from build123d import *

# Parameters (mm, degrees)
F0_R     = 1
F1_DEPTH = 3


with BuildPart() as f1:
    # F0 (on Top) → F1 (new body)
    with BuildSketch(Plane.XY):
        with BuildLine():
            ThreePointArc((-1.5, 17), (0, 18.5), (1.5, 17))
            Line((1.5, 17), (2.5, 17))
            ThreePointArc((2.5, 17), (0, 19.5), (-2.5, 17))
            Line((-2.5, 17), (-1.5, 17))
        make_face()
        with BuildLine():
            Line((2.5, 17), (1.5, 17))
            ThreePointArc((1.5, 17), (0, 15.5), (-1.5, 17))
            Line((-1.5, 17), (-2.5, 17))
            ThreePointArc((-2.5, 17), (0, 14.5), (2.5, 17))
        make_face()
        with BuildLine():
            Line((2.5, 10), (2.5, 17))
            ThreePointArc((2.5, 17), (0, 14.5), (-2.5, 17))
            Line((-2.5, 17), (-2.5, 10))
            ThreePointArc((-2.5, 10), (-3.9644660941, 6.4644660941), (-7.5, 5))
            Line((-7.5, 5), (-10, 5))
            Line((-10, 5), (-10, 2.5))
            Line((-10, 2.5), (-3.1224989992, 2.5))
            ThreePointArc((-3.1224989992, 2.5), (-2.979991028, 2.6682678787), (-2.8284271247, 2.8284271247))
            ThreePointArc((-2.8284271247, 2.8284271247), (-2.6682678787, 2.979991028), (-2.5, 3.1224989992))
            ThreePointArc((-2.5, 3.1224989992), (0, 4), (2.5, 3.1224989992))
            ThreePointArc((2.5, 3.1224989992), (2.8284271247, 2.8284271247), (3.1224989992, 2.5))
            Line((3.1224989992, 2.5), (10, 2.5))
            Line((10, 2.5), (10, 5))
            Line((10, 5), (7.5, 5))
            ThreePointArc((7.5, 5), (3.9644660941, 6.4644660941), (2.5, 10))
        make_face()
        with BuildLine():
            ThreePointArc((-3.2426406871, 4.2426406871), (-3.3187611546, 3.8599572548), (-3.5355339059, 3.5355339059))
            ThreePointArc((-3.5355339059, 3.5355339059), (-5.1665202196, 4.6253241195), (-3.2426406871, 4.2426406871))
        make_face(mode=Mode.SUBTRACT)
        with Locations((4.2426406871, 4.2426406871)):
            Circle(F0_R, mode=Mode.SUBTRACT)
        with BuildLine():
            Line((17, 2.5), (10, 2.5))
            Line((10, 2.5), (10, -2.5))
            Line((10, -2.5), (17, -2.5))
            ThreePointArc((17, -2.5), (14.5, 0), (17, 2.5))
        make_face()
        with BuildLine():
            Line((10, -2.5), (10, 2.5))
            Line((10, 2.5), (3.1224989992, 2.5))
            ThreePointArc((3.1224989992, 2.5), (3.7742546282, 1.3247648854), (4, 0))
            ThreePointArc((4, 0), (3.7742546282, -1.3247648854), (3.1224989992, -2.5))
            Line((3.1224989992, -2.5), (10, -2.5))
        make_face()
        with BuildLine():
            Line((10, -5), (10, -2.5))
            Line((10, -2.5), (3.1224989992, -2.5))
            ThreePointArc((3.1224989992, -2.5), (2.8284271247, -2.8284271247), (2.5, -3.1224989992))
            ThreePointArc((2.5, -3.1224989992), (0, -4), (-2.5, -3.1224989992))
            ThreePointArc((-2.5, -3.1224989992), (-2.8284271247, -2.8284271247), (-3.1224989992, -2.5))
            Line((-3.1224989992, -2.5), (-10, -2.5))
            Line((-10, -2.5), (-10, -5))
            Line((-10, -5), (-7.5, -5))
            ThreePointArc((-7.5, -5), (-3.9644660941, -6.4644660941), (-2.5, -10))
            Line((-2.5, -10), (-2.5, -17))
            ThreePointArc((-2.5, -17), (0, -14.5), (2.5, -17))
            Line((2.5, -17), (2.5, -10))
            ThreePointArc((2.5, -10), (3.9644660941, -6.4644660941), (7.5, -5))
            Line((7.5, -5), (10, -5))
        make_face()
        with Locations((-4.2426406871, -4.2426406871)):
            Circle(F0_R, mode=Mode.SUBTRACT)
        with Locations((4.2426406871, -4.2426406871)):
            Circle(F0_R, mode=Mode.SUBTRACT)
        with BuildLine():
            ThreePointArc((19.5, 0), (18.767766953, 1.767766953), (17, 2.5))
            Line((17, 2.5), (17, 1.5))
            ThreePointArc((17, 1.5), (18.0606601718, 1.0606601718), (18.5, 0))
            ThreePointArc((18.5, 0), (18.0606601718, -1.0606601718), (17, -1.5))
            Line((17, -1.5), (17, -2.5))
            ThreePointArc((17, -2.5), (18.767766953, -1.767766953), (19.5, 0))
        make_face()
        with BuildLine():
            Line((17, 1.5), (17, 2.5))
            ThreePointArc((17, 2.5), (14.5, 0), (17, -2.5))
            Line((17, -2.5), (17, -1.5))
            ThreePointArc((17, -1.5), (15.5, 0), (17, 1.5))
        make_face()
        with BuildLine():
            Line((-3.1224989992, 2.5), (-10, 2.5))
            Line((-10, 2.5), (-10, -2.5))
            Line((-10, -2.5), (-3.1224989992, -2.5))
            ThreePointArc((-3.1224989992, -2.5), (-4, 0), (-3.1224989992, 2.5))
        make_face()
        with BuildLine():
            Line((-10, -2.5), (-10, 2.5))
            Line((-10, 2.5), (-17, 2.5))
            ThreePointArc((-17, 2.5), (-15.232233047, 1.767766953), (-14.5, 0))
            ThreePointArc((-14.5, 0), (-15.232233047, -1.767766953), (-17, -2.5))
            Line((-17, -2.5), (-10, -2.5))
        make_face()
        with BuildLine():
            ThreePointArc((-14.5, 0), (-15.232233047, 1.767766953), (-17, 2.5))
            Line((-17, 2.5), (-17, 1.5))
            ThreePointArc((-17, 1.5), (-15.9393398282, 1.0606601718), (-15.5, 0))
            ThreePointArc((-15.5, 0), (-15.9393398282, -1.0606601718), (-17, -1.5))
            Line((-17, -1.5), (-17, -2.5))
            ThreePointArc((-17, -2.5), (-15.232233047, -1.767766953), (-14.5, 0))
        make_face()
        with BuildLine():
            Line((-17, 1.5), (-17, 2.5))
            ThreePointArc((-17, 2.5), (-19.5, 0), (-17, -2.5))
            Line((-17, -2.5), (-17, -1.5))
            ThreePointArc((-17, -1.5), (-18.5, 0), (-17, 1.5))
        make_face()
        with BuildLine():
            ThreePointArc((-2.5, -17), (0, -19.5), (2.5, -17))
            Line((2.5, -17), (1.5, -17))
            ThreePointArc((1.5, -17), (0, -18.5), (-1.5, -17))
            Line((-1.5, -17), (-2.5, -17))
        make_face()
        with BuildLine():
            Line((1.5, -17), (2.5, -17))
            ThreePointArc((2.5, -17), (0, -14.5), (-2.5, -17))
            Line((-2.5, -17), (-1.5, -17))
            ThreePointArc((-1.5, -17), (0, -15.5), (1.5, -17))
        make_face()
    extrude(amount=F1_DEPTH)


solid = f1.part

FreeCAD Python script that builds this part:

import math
import FreeCAD as App
import Part
import Sketcher

V = App.Vector

doc = App.newDocument("Part")
body = doc.addObject("PartDesign::Body", "Body")

# Sketch on XY plane
sketch1 = doc.addObject("Sketcher::SketchObject", "Sketch")
body.addObject(sketch1)
sketch1.AttachmentSupport = (doc.XY_Plane, [""])
sketch1.MapMode = "FlatFace"
sketch1.addGeometry(Part.ArcOfCircle(Part.Circle(V(0, 17, 0), V(0, 0, 1), 2.5), math.radians(0), math.radians(180)), False)
sketch1.addGeometry(Part.LineSegment(V(-2.5, 17, 0), V(-2.5, 10, 0)), False)
sketch1.addGeometry(Part.ArcOfCircle(Part.Circle(V(-7.5, 10, 0), V(0, 0, 1), 5), math.radians(-90), math.radians(0)), False)
sketch1.addGeometry(Part.LineSegment(V(-7.5, 5, 0), V(-10, 5, 0)), False)
sketch1.addGeometry(Part.LineSegment(V(-10, 5, 0), V(-10, 2.5, 0)), False)
sketch1.addGeometry(Part.LineSegment(V(-10, 2.5, 0), V(-17, 2.5, 0)), False)
sketch1.addGeometry(Part.ArcOfCircle(Part.Circle(V(-17, 0, 0), V(0, 0, 1), 2.5), math.radians(90), math.radians(270)), False)
sketch1.addGeometry(Part.LineSegment(V(-17, -2.5, 0), V(-10, -2.5, 0)), False)
sketch1.addGeometry(Part.LineSegment(V(-10, -2.5, 0), V(-10, -5, 0)), False)
sketch1.addGeometry(Part.LineSegment(V(-10, -5, 0), V(-7.5, -5, 0)), False)
sketch1.addGeometry(Part.ArcOfCircle(Part.Circle(V(-7.5, -10, 0), V(0, 0, 1), 5), math.radians(0), math.radians(90)), False)
sketch1.addGeometry(Part.LineSegment(V(-2.5, -10, 0), V(-2.5, -17, 0)), False)
sketch1.addGeometry(Part.ArcOfCircle(Part.Circle(V(0, -17, 0), V(0, 0, 1), 2.5), math.radians(180), math.radians(360)), False)
sketch1.addGeometry(Part.LineSegment(V(2.5, -17, 0), V(2.5, -10, 0)), False)
sketch1.addGeometry(Part.ArcOfCircle(Part.Circle(V(7.5, -10, 0), V(0, 0, 1), 5), math.radians(90), math.radians(180)), False)
sketch1.addGeometry(Part.LineSegment(V(7.5, -5, 0), V(10, -5, 0)), False)
sketch1.addGeometry(Part.LineSegment(V(10, -5, 0), V(10, -2.5, 0)), False)
sketch1.addGeometry(Part.LineSegment(V(10, -2.5, 0), V(17, -2.5, 0)), False)
sketch1.addGeometry(Part.ArcOfCircle(Part.Circle(V(17, 0, 0), V(0, 0, 1), 2.5), math.radians(-90), math.radians(0)), False)
sketch1.addGeometry(Part.ArcOfCircle(Part.Circle(V(17, 0, 0), V(0, 0, 1), 2.5), math.radians(0), math.radians(90)), False)
sketch1.addGeometry(Part.LineSegment(V(17, 2.5, 0), V(10, 2.5, 0)), False)
sketch1.addGeometry(Part.LineSegment(V(10, 2.5, 0), V(10, 5, 0)), False)
sketch1.addGeometry(Part.LineSegment(V(10, 5, 0), V(7.5, 5, 0)), False)
sketch1.addGeometry(Part.ArcOfCircle(Part.Circle(V(7.5, 10, 0), V(0, 0, 1), 5), math.radians(180), math.radians(270)), False)
sketch1.addGeometry(Part.LineSegment(V(2.5, 10, 0), V(2.5, 17, 0)), False)
sketch1.addGeometry(Part.ArcOfCircle(Part.Circle(V(-17, 0, 0), V(0, 0, 1), 1.5), math.radians(0), math.radians(90)), False)
sketch1.addGeometry(Part.ArcOfCircle(Part.Circle(V(-17, 0, 0), V(0, 0, 1), 1.5), math.radians(-90), math.radians(0)), False)
sketch1.addGeometry(Part.ArcOfCircle(Part.Circle(V(-17, 0, 0), V(0, 0, 1), 1.5), math.radians(90), math.radians(270)), False)
sketch1.addGeometry(Part.ArcOfCircle(Part.Circle(V(0, 0, 0), V(0, 0, 1), 4), math.radians(135), math.radians(141.32)), False)
sketch1.addGeometry(Part.ArcOfCircle(Part.Circle(V(0, 0, 0), V(0, 0, 1), 4), math.radians(128.68), math.radians(135)), False)
sketch1.addGeometry(Part.ArcOfCircle(Part.Circle(V(0, 0, 0), V(0, 0, 1), 4), math.radians(51), math.radians(129)), False)
sketch1.addGeometry(Part.ArcOfCircle(Part.Circle(V(0, 0, 0), V(0, 0, 1), 4), math.radians(38.68), math.radians(51.32)), False)
sketch1.addGeometry(Part.ArcOfCircle(Part.Circle(V(0, 0, 0), V(0, 0, 1), 4), math.radians(0), math.radians(39)), False)
sketch1.addGeometry(Part.ArcOfCircle(Part.Circle(V(0, 0, 0), V(0, 0, 1), 4), math.radians(-39), math.radians(0)), False)
sketch1.addGeometry(Part.ArcOfCircle(Part.Circle(V(0, 0, 0), V(0, 0, 1), 4), math.radians(-51.32), math.radians(-38.68)), False)
sketch1.addGeometry(Part.ArcOfCircle(Part.Circle(V(0, 0, 0), V(0, 0, 1), 4), math.radians(-129), math.radians(-51)), False)
sketch1.addGeometry(Part.ArcOfCircle(Part.Circle(V(0, 0, 0), V(0, 0, 1), 4), math.radians(-141.32), math.radians(-128.68)), False)
sketch1.addGeometry(Part.ArcOfCircle(Part.Circle(V(0, 0, 0), V(0, 0, 1), 4), math.radians(141), math.radians(219)), False)
sketch1.addGeometry(Part.Circle(V(-4.24, -4.24, 0), V(0, 0, 1), 1), False)
sketch1.addGeometry(Part.ArcOfCircle(Part.Circle(V(-4.24, 4.24, 0), V(0, 0, 1), 1), math.radians(0), math.radians(315)), False)
sketch1.addGeometry(Part.ArcOfCircle(Part.Circle(V(-4.24, 4.24, 0), V(0, 0, 1), 1), math.radians(-45), math.radians(0)), False)
sketch1.addGeometry(Part.Circle(V(4.24, -4.24, 0), V(0, 0, 1), 1), False)
sketch1.addGeometry(Part.Circle(V(4.24, 4.24, 0), V(0, 0, 1), 1), False)
sketch1.addGeometry(Part.Circle(V(0, 17, 0), V(0, 0, 1), 1.5), False)
sketch1.addGeometry(Part.ArcOfCircle(Part.Circle(V(17, 0, 0), V(0, 0, 1), 1.5), math.radians(90), math.radians(270)), False)
sketch1.addGeometry(Part.ArcOfCircle(Part.Circle(V(17, 0, 0), V(0, 0, 1), 1.5), math.radians(0), math.radians(90)), False)
sketch1.addGeometry(Part.ArcOfCircle(Part.Circle(V(17, 0, 0), V(0, 0, 1), 1.5), math.radians(-90), math.radians(0)), False)
sketch1.addGeometry(Part.Circle(V(0, -17, 0), V(0, 0, 1), 1.5), False)
sketch1.addConstraint(Sketcher.Constraint("Tangent", 0, 2, 1, 1))
sketch1.addConstraint(Sketcher.Constraint("Tangent", 1, 2, 2, 2))
sketch1.addConstraint(Sketcher.Constraint("Tangent", 2, 1, 3, 1))
sketch1.addConstraint(Sketcher.Constraint("Coincident", 3, 2, 4, 1))
sketch1.addConstraint(Sketcher.Constraint("Coincident", 4, 2, 5, 1))
sketch1.addConstraint(Sketcher.Constraint("Tangent", 5, 2, 6, 1))
sketch1.addConstraint(Sketcher.Constraint("Tangent", 6, 2, 7, 1))
sketch1.addConstraint(Sketcher.Constraint("Coincident", 7, 2, 8, 1))
sketch1.addConstraint(Sketcher.Constraint("Coincident", 8, 2, 9, 1))
sketch1.addConstraint(Sketcher.Constraint("Tangent", 9, 2, 10, 2))
sketch1.addConstraint(Sketcher.Constraint("Tangent", 10, 1, 11, 1))
sketch1.addConstraint(Sketcher.Constraint("Tangent", 11, 2, 12, 1))
sketch1.addConstraint(Sketcher.Constraint("Tangent", 12, 2, 13, 1))
sketch1.addConstraint(Sketcher.Constraint("Tangent", 13, 2, 14, 2))
sketch1.addConstraint(Sketcher.Constraint("Tangent", 14, 1, 15, 1))
sketch1.addConstraint(Sketcher.Constraint("Coincident", 15, 2, 16, 1))
sketch1.addConstraint(Sketcher.Constraint("Coincident", 16, 2, 17, 1))
sketch1.addConstraint(Sketcher.Constraint("Tangent", 17, 2, 18, 1))
sketch1.addConstraint(Sketcher.Constraint("Tangent", 18, 2, 19, 1))
sketch1.addConstraint(Sketcher.Constraint("Tangent", 19, 2, 20, 1))
sketch1.addConstraint(Sketcher.Constraint("Coincident", 20, 2, 21, 1))
sketch1.addConstraint(Sketcher.Constraint("Coincident", 21, 2, 22, 1))
sketch1.addConstraint(Sketcher.Constraint("Tangent", 22, 2, 23, 2))
sketch1.addConstraint(Sketcher.Constraint("Tangent", 23, 1, 24, 1))
sketch1.addConstraint(Sketcher.Constraint("Tangent", 24, 2, 0, 1))
sketch1.addConstraint(Sketcher.Constraint("Tangent", 25, 1, 26, 2))
sketch1.addConstraint(Sketcher.Constraint("Tangent", 26, 1, 27, 2))
sketch1.addConstraint(Sketcher.Constraint("Tangent", 27, 1, 25, 2))
sketch1.addConstraint(Sketcher.Constraint("Tangent", 28, 1, 29, 2))
sketch1.addConstraint(Sketcher.Constraint("Tangent", 29, 1, 30, 2))
sketch1.addConstraint(Sketcher.Constraint("Tangent", 30, 1, 31, 2))
sketch1.addConstraint(Sketcher.Constraint("Tangent", 31, 1, 32, 2))
sketch1.addConstraint(Sketcher.Constraint("Tangent", 32, 1, 33, 2))
sketch1.addConstraint(Sketcher.Constraint("Tangent", 33, 1, 34, 2))
sketch1.addConstraint(Sketcher.Constraint("Tangent", 34, 1, 35, 2))
sketch1.addConstraint(Sketcher.Constraint("Tangent", 35, 1, 36, 2))
sketch1.addConstraint(Sketcher.Constraint("Tangent", 36, 1, 37, 2))
sketch1.addConstraint(Sketcher.Constraint("Tangent", 37, 1, 28, 2))
sketch1.addConstraint(Sketcher.Constraint("Tangent", 39, 1, 40, 2))
sketch1.addConstraint(Sketcher.Constraint("Coincident", 40, 1, 39, 2))
sketch1.addConstraint(Sketcher.Constraint("Tangent", 44, 1, 45, 2))
sketch1.addConstraint(Sketcher.Constraint("Tangent", 45, 1, 46, 2))
sketch1.addConstraint(Sketcher.Constraint("Tangent", 46, 1, 44, 2))
sketch1.addConstraint(Sketcher.Constraint("Vertical", 1))
sketch1.addConstraint(Sketcher.Constraint("Horizontal", 3))
sketch1.addConstraint(Sketcher.Constraint("Vertical", 4))
sketch1.addConstraint(Sketcher.Constraint("Horizontal", 5))
sketch1.addConstraint(Sketcher.Constraint("Horizontal", 7))
sketch1.addConstraint(Sketcher.Constraint("Vertical", 8))
sketch1.addConstraint(Sketcher.Constraint("Horizontal", 9))
sketch1.addConstraint(Sketcher.Constraint("Vertical", 11))
sketch1.addConstraint(Sketcher.Constraint("Vertical", 13))
sketch1.addConstraint(Sketcher.Constraint("Horizontal", 15))
sketch1.addConstraint(Sketcher.Constraint("Vertical", 16))
sketch1.addConstraint(Sketcher.Constraint("Horizontal", 17))
sketch1.addConstraint(Sketcher.Constraint("Horizontal", 20))
sketch1.addConstraint(Sketcher.Constraint("Vertical", 21))
sketch1.addConstraint(Sketcher.Constraint("Horizontal", 22))
sketch1.addConstraint(Sketcher.Constraint("Vertical", 24))
sketch1.addConstraint(Sketcher.Constraint("Coincident", 28, 3, -1, 1))
sketch1.addConstraint(Sketcher.Constraint("Coincident", 30, 3, -1, 1))
sketch1.addConstraint(Sketcher.Constraint("Coincident", 32, 3, -1, 1))
sketch1.addConstraint(Sketcher.Constraint("Coincident", 34, 3, -1, 1))
sketch1.addConstraint(Sketcher.Constraint("Coincident", 25, 3, 6, 3))
sketch1.addConstraint(Sketcher.Constraint("Coincident", 43, 3, 0, 3))
sketch1.addConstraint(Sketcher.Constraint("Coincident", 44, 3, 18, 3))
sketch1.addConstraint(Sketcher.Constraint("Coincident", 47, 3, 12, 3))
sketch1.addConstraint(Sketcher.Constraint("Equal", 0, 6))
sketch1.addConstraint(Sketcher.Constraint("Equal", 2, 10))
sketch1.addConstraint(Sketcher.Constraint("Equal", 6, 12))
sketch1.addConstraint(Sketcher.Constraint("Equal", 10, 14))
sketch1.addConstraint(Sketcher.Constraint("Equal", 12, 18))
sketch1.addConstraint(Sketcher.Constraint("Equal", 18, 19))
sketch1.addConstraint(Sketcher.Constraint("Equal", 14, 23))
sketch1.addConstraint(Sketcher.Constraint("Equal", 34, 35))
sketch1.addConstraint(Sketcher.Constraint("Equal", 38, 39))
sketch1.addConstraint(Sketcher.Constraint("Equal", 40, 41))
sketch1.addConstraint(Sketcher.Constraint("Equal", 41, 42))
sketch1.addConstraint(Sketcher.Constraint("Equal", 27, 43))
sketch1.addConstraint(Sketcher.Constraint("Equal", 43, 44))
sketch1.addConstraint(Sketcher.Constraint("Equal", 46, 47))
sketch1.addConstraint(Sketcher.Constraint("Symmetric", 0, 3, 12, 3, -1, 1))
sketch1.addConstraint(Sketcher.Constraint("Symmetric", 6, 3, 18, 3, -1, 1))
sketch1.addConstraint(Sketcher.Constraint("Symmetric", 39, 3, 41, 3, -1, 1))
sketch1.addConstraint(Sketcher.Constraint("Symmetric", 38, 3, 42, 3, -1, 1))
sketch1.addConstraint(Sketcher.Constraint("Symmetric", 3, 2, 15, 2, -1, 1))
sketch1.addConstraint(Sketcher.Constraint("Symmetric", 8, 2, 21, 2, -1, 1))
sketch1.addConstraint(Sketcher.Constraint("Symmetric", 10, 3, 14, 3, -2))
sketch1.addConstraint(Sketcher.Constraint("Symmetric", 38, 3, 41, 3, -2))
sketch1.addConstraint(Sketcher.Constraint("Symmetric", 7, 2, 16, 2, -2))
sketch1.addConstraint(Sketcher.Constraint("PointOnObject", 18, 2, -1))
sketch1.addConstraint(Sketcher.Constraint("PointOnObject", 25, 1, -1))
sketch1.addConstraint(Sketcher.Constraint("PointOnObject", 32, 1, -1))
sketch1.addConstraint(Sketcher.Constraint("PointOnObject", 45, 1, -1))
sketch1.addConstraint(Sketcher.Constraint("Horizontal", 29, 1, 30, 1))
sketch1.addConstraint(Sketcher.Constraint("Horizontal", 20, 2, 31, 1))
sketch1.addConstraint(Sketcher.Constraint("Horizontal", 17, 2, 33, 1))
sketch1.addConstraint(Sketcher.Constraint("Horizontal", 34, 1, 35, 1))
sketch1.addConstraint(Sketcher.Constraint("Horizontal", 33, 1, 36, 1))
sketch1.addConstraint(Sketcher.Constraint("Horizontal", 31, 1, 37, 1))
sketch1.addConstraint(Sketcher.Constraint("Horizontal", 42, 3, 39, 1))
sketch1.addConstraint(Sketcher.Constraint("Vertical", 6, 2, 26, 1))
sketch1.addConstraint(Sketcher.Constraint("Vertical", 26, 1, 27, 1))
sketch1.addConstraint(Sketcher.Constraint("Vertical", 11, 2, 29, 1))
sketch1.addConstraint(Sketcher.Constraint("Vertical", 30, 1, 34, 1))
sketch1.addConstraint(Sketcher.Constraint("Vertical", 19, 2, 44, 1))
sketch1.addConstraint(Sketcher.Constraint("Vertical", 44, 1, 46, 1))
sketch1.addConstraint(Sketcher.Constraint("Equal", 20, 1))
sketch1.addConstraint(Sketcher.Constraint("Equal", 22, 4))
sketch1.addConstraint(Sketcher.Constraint("Diameter", 38, 2.0))
sketch1.addConstraint(Sketcher.Constraint("Diameter", 43, 3.0))
sketch1.addConstraint(Sketcher.Constraint("Radius", 2, 5.0))
sketch1.addConstraint(Sketcher.Constraint("Radius", 28, 4.0))
sketch1.addConstraint(Sketcher.Constraint("Radius", 0, 2.5))
sketch1.addConstraint(Sketcher.Constraint("DistanceX", 5, 2, 5, 1, 7.0))
sketch1.addConstraint(Sketcher.Constraint("DistanceX", 3, 2, 3, 1, 2.5))
sketch1.addConstraint(Sketcher.Constraint("DistanceX", 38, 3, -1, 1, 4.242641))
sketch1.addConstraint(Sketcher.Constraint("DistanceY", 38, 3, -1, 1, 4.242641))
sketch1.addConstraint(Sketcher.Constraint("DistanceX", 28, 1, -1, 1, 2.828427))
sketch1.addConstraint(Sketcher.Constraint("DistanceX", 40, 1, -1, 1, 3.535534))
pad1 = doc.addObject("PartDesign::Pad", "Pad")
body.addObject(pad1)
pad1.Profile = sketch1
pad1.Length = 3

doc.recompute()
